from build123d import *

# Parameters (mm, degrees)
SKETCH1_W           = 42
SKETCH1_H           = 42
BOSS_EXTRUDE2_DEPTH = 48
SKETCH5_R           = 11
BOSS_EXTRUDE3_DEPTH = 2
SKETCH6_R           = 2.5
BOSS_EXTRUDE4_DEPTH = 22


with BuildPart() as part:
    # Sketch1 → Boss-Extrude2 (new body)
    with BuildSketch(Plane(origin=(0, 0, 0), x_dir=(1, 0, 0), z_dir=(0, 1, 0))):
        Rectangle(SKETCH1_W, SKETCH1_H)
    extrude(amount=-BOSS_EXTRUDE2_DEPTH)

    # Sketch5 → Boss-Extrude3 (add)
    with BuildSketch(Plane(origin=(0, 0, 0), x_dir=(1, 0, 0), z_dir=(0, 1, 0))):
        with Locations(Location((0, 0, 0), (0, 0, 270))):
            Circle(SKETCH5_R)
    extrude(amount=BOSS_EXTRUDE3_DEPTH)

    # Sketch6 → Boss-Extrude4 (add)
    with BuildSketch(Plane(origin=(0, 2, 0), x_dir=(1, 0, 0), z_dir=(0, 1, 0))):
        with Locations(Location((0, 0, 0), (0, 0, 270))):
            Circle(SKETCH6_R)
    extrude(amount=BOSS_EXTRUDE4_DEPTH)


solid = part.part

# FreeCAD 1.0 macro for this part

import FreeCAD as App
import Part
import Sketcher

V = App.Vector
Q = App.Units.Quantity

doc = App.newDocument("Part")
body = doc.addObject("PartDesign::Body", "Body")

sketch1 = body.newObject("Sketcher::SketchObject", "Sketch")
sketch1.AttachmentSupport = (doc.getObject("XZ_Plane"), [""])
sketch1.MapMode = "FlatFace"
sketch1.addGeometry(Part.LineSegment(V(-21, -21, 0), V(-21, 21, 0)), False)
sketch1.addGeometry(Part.LineSegment(V(-21, 21, 0), V(21, 21, 0)), False)
sketch1.addGeometry(Part.LineSegment(V(21, 21, 0), V(21, -21, 0)), False)
sketch1.addGeometry(Part.LineSegment(V(21, -21, 0), V(-21, -21, 0)), False)
sketch1.addConstraint(Sketcher.Constraint("Coincident", 0, 2, 1, 1))
sketch1.addConstraint(Sketcher.Constraint("Coincident", 1, 2, 2, 1))
sketch1.addConstraint(Sketcher.Constraint("Coincident", 2, 2, 3, 1))
sketch1.addConstraint(Sketcher.Constraint("Coincident", 3, 2, 0, 1))
sketch1.addConstraint(Sketcher.Constraint("Vertical", 0))
sketch1.addConstraint(Sketcher.Constraint("Horizontal", 1))
sketch1.addConstraint(Sketcher.Constraint("Vertical", 2))
sketch1.addConstraint(Sketcher.Constraint("Horizontal", 3))
sketch1.addConstraint(Sketcher.Constraint("Symmetric", 0, 2, 2, 2, -1, 1))
sketch1.addConstraint(Sketcher.Constraint("Equal", 3, 0))
sketch1.addConstraint(Sketcher.Constraint("DistanceX", 1, 1, 1, 2, Q("42 mm")))
pad1 = body.newObject("PartDesign::Pad", "Pad")
pad1.Profile = sketch1
pad1.Length = 48

sketch2 = body.newObject("Sketcher::SketchObject", "Sketch001")
sketch2.AttachmentSupport = (doc.getObject("XZ_Plane"), [""])
sketch2.MapMode = "FlatFace"
sketch2.addGeometry(Part.Circle(V(0, 0, 0), V(0, 0, 1), 11), False)
sketch2.addConstraint(Sketcher.Constraint("Coincident", 0, 3, -1, 1))
sketch2.addConstraint(Sketcher.Constraint("Diameter", 0, Q("22 mm")))
pad2 = body.newObject("PartDesign::Pad", "Pad001")
pad2.Profile = sketch2
pad2.Length = 2
pad2.Reversed = True

sketch3 = body.newObject("Sketcher::SketchObject", "Sketch002")
sketch3.AttachmentSupport = (doc.getObject("XZ_Plane"), [""])
sketch3.MapMode = "FlatFace"
sketch3.AttachmentOffset = App.Placement(V(0, 0, -2), App.Rotation())
sketch3.addGeometry(Part.Circle(V(0, 0, 0), V(0, 0, 1), 2.5), False)
sketch3.addConstraint(Sketcher.Constraint("Coincident", 0, 3, -1, 1))
sketch3.addConstraint(Sketcher.Constraint("Diameter", 0, Q("5 mm")))
pad3 = body.newObject("PartDesign::Pad", "Pad002")
pad3.Profile = sketch3
pad3.Length = 22
pad3.Reversed = True

doc.recompute()
